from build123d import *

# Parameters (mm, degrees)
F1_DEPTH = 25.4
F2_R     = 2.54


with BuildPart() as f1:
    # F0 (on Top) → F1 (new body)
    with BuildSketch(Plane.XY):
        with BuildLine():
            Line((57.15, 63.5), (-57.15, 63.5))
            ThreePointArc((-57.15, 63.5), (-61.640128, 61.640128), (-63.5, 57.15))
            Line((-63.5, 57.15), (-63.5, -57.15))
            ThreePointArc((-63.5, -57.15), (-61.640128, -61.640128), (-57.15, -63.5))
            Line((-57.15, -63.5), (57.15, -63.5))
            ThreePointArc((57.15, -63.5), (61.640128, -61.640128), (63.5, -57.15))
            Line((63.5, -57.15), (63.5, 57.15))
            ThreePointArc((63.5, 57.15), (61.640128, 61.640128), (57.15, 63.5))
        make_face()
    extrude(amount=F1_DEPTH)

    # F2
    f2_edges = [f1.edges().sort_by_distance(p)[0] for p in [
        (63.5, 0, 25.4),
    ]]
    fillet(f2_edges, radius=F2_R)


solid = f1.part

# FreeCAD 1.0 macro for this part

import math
import FreeCAD as App
import Part
import Sketcher

V = App.Vector
Q = App.Units.Quantity


def edges_at(feature, points):
    """Names of the edges that pass closest to the given points."""
    edges = feature.Shape.Edges
    near = lambda p: min(range(len(edges)), key=lambda i: edges[i].distToShape(Part.Vertex(*p))[0])
    return sorted({f"Edge{near(p) + 1}" for p in points})

doc = App.newDocument("Part")
body = doc.addObject("PartDesign::Body", "Body")

# Sketch on XY plane
sketch1 = doc.addObject("Sketcher::SketchObject", "Sketch")
body.addObject(sketch1)
sketch1.AttachmentSupport = (doc.XY_Plane, [""])
sketch1.MapMode = "FlatFace"
sketch1.addGeometry([
    Part.LineSegment(V(57, 64, 0), V(-57, 64, 0)),  # 0
    Part.ArcOfCircle(Part.Circle(V(-57, 57, 0), V(0, 0, 1), 6), math.radians(90), math.radians(180)),  # 1
    Part.LineSegment(V(-64, 57, 0), V(-64, -57, 0)),  # 2
    Part.ArcOfCircle(Part.Circle(V(-57, -57, 0), V(0, 0, 1), 6), math.radians(-180), math.radians(-90)),  # 3
    Part.LineSegment(V(-57, -64, 0), V(57, -64, 0)),  # 4
    Part.ArcOfCircle(Part.Circle(V(57, -57, 0), V(0, 0, 1), 6), math.radians(-90), math.radians(0)),  # 5
    Part.LineSegment(V(64, -57, 0), V(64, 57, 0)),  # 6
    Part.ArcOfCircle(Part.Circle(V(57, 57, 0), V(0, 0, 1), 6), math.radians(0), math.radians(90)),  # 7
], False)
sketch1.addConstraint([
    Sketcher.Constraint("Tangent", 0, 2, 1, 1),
    Sketcher.Constraint("Tangent", 1, 2, 2, 1),
    Sketcher.Constraint("Tangent", 2, 2, 3, 1),
    Sketcher.Constraint("Tangent", 3, 2, 4, 1),
    Sketcher.Constraint("Tangent", 4, 2, 5, 1),
    Sketcher.Constraint("Tangent", 5, 2, 6, 1),
    Sketcher.Constraint("Tangent", 6, 2, 7, 1),
    Sketcher.Constraint("Tangent", 7, 2, 0, 1),
    Sketcher.Constraint("Horizontal", 0),
    Sketcher.Constraint("Vertical", 2),
    Sketcher.Constraint("Horizontal", 4),
    Sketcher.Constraint("Vertical", 6),
    Sketcher.Constraint("Equal", 1, 3),
    Sketcher.Constraint("Equal", 3, 5),
    Sketcher.Constraint("Equal", 5, 7),
    Sketcher.Constraint("Symmetric", 1, 3, 5, 3, -1, 1),
    Sketcher.Constraint("Equal", 4, 2),
    Sketcher.Constraint("Radius", 1, Q("0.25 in")),
    Sketcher.Constraint("DistanceX", 0, 2, 0, 1, Q("4.5 in")),
])
pad1 = doc.addObject("PartDesign::Pad", "Pad")
body.addObject(pad1)
pad1.Profile = sketch1
pad1.Length = Q("1 in")
doc.recompute()

fillet = doc.addObject("PartDesign::Fillet", "Fillet")
body.addObject(fillet)
fillet.Base = (pad1, edges_at(pad1, [(63.5, 0, 25.4)]))
fillet.Radius = Q("0.1 in")

doc.recompute()
